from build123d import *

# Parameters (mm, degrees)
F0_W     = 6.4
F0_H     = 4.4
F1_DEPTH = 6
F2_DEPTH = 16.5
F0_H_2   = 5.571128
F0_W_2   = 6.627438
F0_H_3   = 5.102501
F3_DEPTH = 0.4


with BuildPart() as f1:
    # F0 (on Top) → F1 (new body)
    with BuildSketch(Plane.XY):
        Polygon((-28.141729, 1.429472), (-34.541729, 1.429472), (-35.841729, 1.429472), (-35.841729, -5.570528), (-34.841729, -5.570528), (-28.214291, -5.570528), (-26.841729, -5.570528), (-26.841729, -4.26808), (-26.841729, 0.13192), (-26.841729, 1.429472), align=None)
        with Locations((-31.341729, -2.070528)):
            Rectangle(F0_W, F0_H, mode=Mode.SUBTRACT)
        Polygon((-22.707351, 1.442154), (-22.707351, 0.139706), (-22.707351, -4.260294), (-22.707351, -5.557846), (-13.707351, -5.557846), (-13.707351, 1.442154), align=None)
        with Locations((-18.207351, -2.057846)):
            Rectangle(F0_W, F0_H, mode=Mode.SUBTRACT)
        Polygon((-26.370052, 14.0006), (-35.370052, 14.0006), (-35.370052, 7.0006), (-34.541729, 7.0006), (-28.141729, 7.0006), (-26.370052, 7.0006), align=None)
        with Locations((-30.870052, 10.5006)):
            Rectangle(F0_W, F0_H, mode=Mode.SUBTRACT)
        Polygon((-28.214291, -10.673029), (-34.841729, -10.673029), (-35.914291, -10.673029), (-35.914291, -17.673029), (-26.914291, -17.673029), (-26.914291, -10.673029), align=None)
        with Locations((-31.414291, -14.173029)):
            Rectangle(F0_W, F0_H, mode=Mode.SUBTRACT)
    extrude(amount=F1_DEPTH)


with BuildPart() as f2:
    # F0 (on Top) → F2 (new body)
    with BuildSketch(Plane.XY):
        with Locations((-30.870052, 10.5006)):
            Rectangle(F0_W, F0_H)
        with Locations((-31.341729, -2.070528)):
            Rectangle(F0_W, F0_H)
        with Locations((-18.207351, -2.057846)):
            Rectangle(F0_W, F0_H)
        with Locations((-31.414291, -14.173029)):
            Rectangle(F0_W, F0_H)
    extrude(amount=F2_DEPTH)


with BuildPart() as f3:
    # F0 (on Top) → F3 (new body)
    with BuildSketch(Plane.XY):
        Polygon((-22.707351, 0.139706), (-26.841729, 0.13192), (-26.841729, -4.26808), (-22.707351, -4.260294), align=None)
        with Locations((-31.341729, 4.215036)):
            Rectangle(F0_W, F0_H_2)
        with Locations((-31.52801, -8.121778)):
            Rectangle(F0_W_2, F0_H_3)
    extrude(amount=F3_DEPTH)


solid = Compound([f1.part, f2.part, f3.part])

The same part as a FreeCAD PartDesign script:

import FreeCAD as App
import Part
import Sketcher
from FreeCAD import Vector

doc = App.newDocument("Part")
body = doc.addObject("PartDesign::Body", "Body")
body.AllowCompound = True

# Sketch on XY plane
sketch1 = body.newObject("Sketcher::SketchObject", "Sketch")
sketch1.AttachmentSupport = (doc.getObject("XY_Plane"), [""])
sketch1.MapMode = "FlatFace"
sketch1.addGeometry(Part.LineSegment(Vector(-35.841729, 1.429472, 0), Vector(-35.841729, -5.570528, 0)), False)
sketch1.addGeometry(Part.LineSegment(Vector(-35.841729, -5.570528, 0), Vector(-26.841729, -5.570528, 0)), False)
sketch1.addGeometry(Part.LineSegment(Vector(-26.841729, -5.570528, 0), Vector(-26.841729, 1.429472, 0)), False)
sketch1.addGeometry(Part.LineSegment(Vector(-26.841729, 1.429472, 0), Vector(-35.841729, 1.429472, 0)), False)
sketch1.addGeometry(Part.LineSegment(Vector(-28.141729, -4.270528, 0), Vector(-34.541729, -4.270528, 0)), False)
sketch1.addGeometry(Part.LineSegment(Vector(-34.541729, -4.270528, 0), Vector(-34.541729, 0.129472, 0)), False)
sketch1.addGeometry(Part.LineSegment(Vector(-34.541729, 0.129472, 0), Vector(-28.141729, 0.129472, 0)), False)
sketch1.addGeometry(Part.LineSegment(Vector(-28.141729, 0.129472, 0), Vector(-28.141729, -4.270528, 0)), False)
sketch1.addGeometry(Part.LineSegment(Vector(-22.707351, 1.442154, 0), Vector(-22.707351, -5.557846, 0)), False)
sketch1.addGeometry(Part.LineSegment(Vector(-22.707351, -5.557846, 0), Vector(-13.707351, -5.557846, 0)), False)
sketch1.addGeometry(Part.LineSegment(Vector(-13.707351, -5.557846, 0), Vector(-13.707351, 1.442154, 0)), False)
sketch1.addGeometry(Part.LineSegment(Vector(-13.707351, 1.442154, 0), Vector(-22.707351, 1.442154, 0)), False)
sketch1.addGeometry(Part.LineSegment(Vector(-15.007351, -4.257846, 0), Vector(-21.407351, -4.257846, 0)), False)
sketch1.addGeometry(Part.LineSegment(Vector(-21.407351, -4.257846, 0), Vector(-21.407351, 0.142154, 0)), False)
sketch1.addGeometry(Part.LineSegment(Vector(-21.407351, 0.142154, 0), Vector(-15.007351, 0.142154, 0)), False)
sketch1.addGeometry(Part.LineSegment(Vector(-15.007351, 0.142154, 0), Vector(-15.007351, -4.257846, 0)), False)
sketch1.addGeometry(Part.LineSegment(Vector(-26.370052, 14.0006, 0), Vector(-35.370052, 14.0006, 0)), False)
sketch1.addGeometry(Part.LineSegment(Vector(-35.370052, 14.0006, 0), Vector(-35.370052, 7.0006, 0)), False)
sketch1.addGeometry(Part.LineSegment(Vector(-35.370052, 7.0006, 0), Vector(-26.370052, 7.0006, 0)), False)
sketch1.addGeometry(Part.LineSegment(Vector(-26.370052, 7.0006, 0), Vector(-26.370052, 14.0006, 0)), False)
sketch1.addGeometry(Part.LineSegment(Vector(-27.670052, 8.3006, 0), Vector(-34.070052, 8.3006, 0)), False)
sketch1.addGeometry(Part.LineSegment(Vector(-34.070052, 8.3006, 0), Vector(-34.070052, 12.7006, 0)), False)
sketch1.addGeometry(Part.LineSegment(Vector(-34.070052, 12.7006, 0), Vector(-27.670052, 12.7006, 0)), False)
sketch1.addGeometry(Part.LineSegment(Vector(-27.670052, 12.7006, 0), Vector(-27.670052, 8.3006, 0)), False)
sketch1.addGeometry(Part.LineSegment(Vector(-35.914291, -10.673029, 0), Vector(-35.914291, -17.673029, 0)), False)
sketch1.addGeometry(Part.LineSegment(Vector(-35.914291, -17.673029, 0), Vector(-26.914291, -17.673029, 0)), False)
sketch1.addGeometry(Part.LineSegment(Vector(-26.914291, -17.673029, 0), Vector(-26.914291, -10.673029, 0)), False)
sketch1.addGeometry(Part.LineSegment(Vector(-26.914291, -10.673029, 0), Vector(-35.914291, -10.673029, 0)), False)
sketch1.addGeometry(Part.LineSegment(Vector(-28.214291, -16.373029, 0), Vector(-34.614291, -16.373029, 0)), False)
sketch1.addGeometry(Part.LineSegment(Vector(-34.614291, -16.373029, 0), Vector(-34.614291, -11.973029, 0)), False)
sketch1.addGeometry(Part.LineSegment(Vector(-34.614291, -11.973029, 0), Vector(-28.214291, -11.973029, 0)), False)
sketch1.addGeometry(Part.LineSegment(Vector(-28.214291, -11.973029, 0), Vector(-28.214291, -16.373029, 0)), False)
sketch1.addConstraint(Sketcher.Constraint("Coincident", 0, 2, 1, 1))
sketch1.addConstraint(Sketcher.Constraint("Coincident", 1, 2, 2, 1))
sketch1.addConstraint(Sketcher.Constraint("Coincident", 2, 2, 3, 1))
sketch1.addConstraint(Sketcher.Constraint("Coincident", 3, 2, 0, 1))
sketch1.addConstraint(Sketcher.Constraint("Coincident", 4, 2, 5, 1))
sketch1.addConstraint(Sketcher.Constraint("Coincident", 5, 2, 6, 1))
sketch1.addConstraint(Sketcher.Constraint("Coincident", 6, 2, 7, 1))
sketch1.addConstraint(Sketcher.Constraint("Coincident", 7, 2, 4, 1))
sketch1.addConstraint(Sketcher.Constraint("Coincident", 8, 2, 9, 1))
sketch1.addConstraint(Sketcher.Constraint("Coincident", 9, 2, 10, 1))
sketch1.addConstraint(Sketcher.Constraint("Coincident", 10, 2, 11, 1))
sketch1.addConstraint(Sketcher.Constraint("Coincident", 11, 2, 8, 1))
sketch1.addConstraint(Sketcher.Constraint("Coincident", 12, 2, 13, 1))
sketch1.addConstraint(Sketcher.Constraint("Coincident", 13, 2, 14, 1))
sketch1.addConstraint(Sketcher.Constraint("Coincident", 14, 2, 15, 1))
sketch1.addConstraint(Sketcher.Constraint("Coincident", 15, 2, 12, 1))
sketch1.addConstraint(Sketcher.Constraint("Coincident", 16, 2, 17, 1))
sketch1.addConstraint(Sketcher.Constraint("Coincident", 17, 2, 18, 1))
sketch1.addConstraint(Sketcher.Constraint("Coincident", 18, 2, 19, 1))
sketch1.addConstraint(Sketcher.Constraint("Coincident", 19, 2, 16, 1))
sketch1.addConstraint(Sketcher.Constraint("Coincident", 20, 2, 21, 1))
sketch1.addConstraint(Sketcher.Constraint("Coincident", 21, 2, 22, 1))
sketch1.addConstraint(Sketcher.Constraint("Coincident", 22, 2, 23, 1))
sketch1.addConstraint(Sketcher.Constraint("Coincident", 23, 2, 20, 1))
sketch1.addConstraint(Sketcher.Constraint("Coincident", 24, 2, 25, 1))
sketch1.addConstraint(Sketcher.Constraint("Coincident", 25, 2, 26, 1))
sketch1.addConstraint(Sketcher.Constraint("Coincident", 26, 2, 27, 1))
sketch1.addConstraint(Sketcher.Constraint("Coincident", 27, 2, 24, 1))
sketch1.addConstraint(Sketcher.Constraint("Coincident", 28, 2, 29, 1))
sketch1.addConstraint(Sketcher.Constraint("Coincident", 29, 2, 30, 1))
sketch1.addConstraint(Sketcher.Constraint("Coincident", 30, 2, 31, 1))
sketch1.addConstraint(Sketcher.Constraint("Coincident", 31, 2, 28, 1))
sketch1.addConstraint(Sketcher.Constraint("Vertical", 0))
sketch1.addConstraint(Sketcher.Constraint("Horizontal", 1))
sketch1.addConstraint(Sketcher.Constraint("Vertical", 2))
sketch1.addConstraint(Sketcher.Constraint("Horizontal", 3))
sketch1.addConstraint(Sketcher.Constraint("Horizontal", 4))
sketch1.addConstraint(Sketcher.Constraint("Vertical", 5))
sketch1.addConstraint(Sketcher.Constraint("Horizontal", 6))
sketch1.addConstraint(Sketcher.Constraint("Vertical", 7))
sketch1.addConstraint(Sketcher.Constraint("Vertical", 8))
sketch1.addConstraint(Sketcher.Constraint("Horizontal", 9))
sketch1.addConstraint(Sketcher.Constraint("Vertical", 10))
sketch1.addConstraint(Sketcher.Constraint("Horizontal", 11))
sketch1.addConstraint(Sketcher.Constraint("Horizontal", 12))
sketch1.addConstraint(Sketcher.Constraint("Vertical", 13))
sketch1.addConstraint(Sketcher.Constraint("Horizontal", 14))
sketch1.addConstraint(Sketcher.Constraint("Vertical", 15))
sketch1.addConstraint(Sketcher.Constraint("Horizontal", 16))
sketch1.addConstraint(Sketcher.Constraint("Vertical", 17))
sketch1.addConstraint(Sketcher.Constraint("Horizontal", 18))
sketch1.addConstraint(Sketcher.Constraint("Vertical", 19))
sketch1.addConstraint(Sketcher.Constraint("Horizontal", 20))
sketch1.addConstraint(Sketcher.Constraint("Vertical", 21))
sketch1.addConstraint(Sketcher.Constraint("Horizontal", 22))
sketch1.addConstraint(Sketcher.Constraint("Vertical", 23))
sketch1.addConstraint(Sketcher.Constraint("Vertical", 24))
sketch1.addConstraint(Sketcher.Constraint("Horizontal", 25))
sketch1.addConstraint(Sketcher.Constraint("Vertical", 26))
sketch1.addConstraint(Sketcher.Constraint("Horizontal", 27))
sketch1.addConstraint(Sketcher.Constraint("Horizontal", 28))
sketch1.addConstraint(Sketcher.Constraint("Vertical", 29))
sketch1.addConstraint(Sketcher.Constraint("Horizontal", 30))
sketch1.addConstraint(Sketcher.Constraint("Vertical", 31))
sketch1.addConstraint(Sketcher.Constraint("Equal", 3, 9))
sketch1.addConstraint(Sketcher.Constraint("Equal", 6, 12))
sketch1.addConstraint(Sketcher.Constraint("Equal", 11, 16))
sketch1.addConstraint(Sketcher.Constraint("Equal", 14, 20))
sketch1.addConstraint(Sketcher.Constraint("Equal", 18, 25))
sketch1.addConstraint(Sketcher.Constraint("Equal", 22, 28))
sketch1.addConstraint(Sketcher.Constraint("Equal", 2, 8))
sketch1.addConstraint(Sketcher.Constraint("Equal", 7, 13))
sketch1.addConstraint(Sketcher.Constraint("Equal", 10, 17))
sketch1.addConstraint(Sketcher.Constraint("Equal", 15, 21))
sketch1.addConstraint(Sketcher.Constraint("Equal", 19, 24))
sketch1.addConstraint(Sketcher.Constraint("Equal", 23, 29))
sketch1.addConstraint(Sketcher.Constraint("DistanceX", 1, 1, 1, 2, 9.0))
sketch1.addConstraint(Sketcher.Constraint("DistanceY", 0, 2, 0, 1, 7.0))
sketch1.addConstraint(Sketcher.Constraint("DistanceX", 4, 2, 4, 1, 6.4))
sketch1.addConstraint(Sketcher.Constraint("DistanceY", 5, 1, 5, 2, 4.4))
sketch1.addConstraint(Sketcher.Constraint("DistanceX", 0, 2, 4, 2, 1.3))
sketch1.addConstraint(Sketcher.Constraint("DistanceY", 0, 2, 4, 2, 1.3))
sketch1.addConstraint(Sketcher.Constraint("DistanceX", 8, 2, 12, 2, 1.3))
sketch1.addConstraint(Sketcher.Constraint("DistanceY", 8, 2, 12, 2, 1.3))
sketch1.addConstraint(Sketcher.Constraint("DistanceX", 17, 2, 20, 2, 1.3))
sketch1.addConstraint(Sketcher.Constraint("DistanceY", 17, 2, 20, 2, 1.3))
sketch1.addConstraint(Sketcher.Constraint("DistanceX", 24, 2, 28, 2, 1.3))
sketch1.addConstraint(Sketcher.Constraint("DistanceY", 24, 2, 28, 2, 1.3))
sketch1.addConstraint(Sketcher.Constraint("DistanceY", -1, 1, 16, 2, 14.0006))
sketch1.addConstraint(Sketcher.Constraint("DistanceX", 16, 2, 11, 2, 12.662701))
sketch1.addConstraint(Sketcher.Constraint("DistanceY", 24, 2, 0, 2, 12.102501))
sketch1.addConstraint(Sketcher.Constraint("DistanceX", 0, 2, -1, 1, 35.841729))
sketch1.addConstraint(Sketcher.Constraint("DistanceY", 0, 2, -1, 1, 5.570528))
sketch1.addConstraint(Sketcher.Constraint("DistanceX", 8, 2, -1, 1, 22.707351))
sketch1.addConstraint(Sketcher.Constraint("DistanceX", 24, 2, -1, 1, 35.914291))
sketch1.addConstraint(Sketcher.Constraint("DistanceY", 2, 2, 10, 2, 0.012682))
pad1 = body.newObject("PartDesign::Pad", "Pad")
pad1.Profile = sketch1
pad1.Length = 6
body2 = doc.addObject("PartDesign::Body", "Body001")
body2.AllowCompound = True

# Sketch on XY plane
sketch2 = body2.newObject("Sketcher::SketchObject", "Sketch001")
sketch2.AttachmentSupport = (doc.getObject("XY_Plane001"), [""])
sketch2.MapMode = "FlatFace"
sketch2.addGeometry(Part.LineSegment(Vector(-34.070052, 12.7006, 0), Vector(-34.070052, 8.3006, 0)), False)
sketch2.addGeometry(Part.LineSegment(Vector(-34.070052, 8.3006, 0), Vector(-27.670052, 8.3006, 0)), False)
sketch2.addGeometry(Part.LineSegment(Vector(-27.670052, 8.3006, 0), Vector(-27.670052, 12.7006, 0)), False)
sketch2.addGeometry(Part.LineSegment(Vector(-27.670052, 12.7006, 0), Vector(-34.070052, 12.7006, 0)), False)
sketch2.addGeometry(Part.LineSegment(Vector(-34.541729, 0.129472, 0), Vector(-34.541729, -4.270528, 0)), False)
sketch2.addGeometry(Part.LineSegment(Vector(-34.541729, -4.270528, 0), Vector(-28.141729, -4.270528, 0)), False)
sketch2.addGeometry(Part.LineSegment(Vector(-28.141729, -4.270528, 0), Vector(-28.141729, 0.129472, 0)), False)
sketch2.addGeometry(Part.LineSegment(Vector(-28.141729, 0.129472, 0), Vector(-34.541729, 0.129472, 0)), False)
sketch2.addGeometry(Part.LineSegment(Vector(-21.407351, 0.142154, 0), Vector(-21.407351, -4.257846, 0)), False)
sketch2.addGeometry(Part.LineSegment(Vector(-21.407351, -4.257846, 0), Vector(-15.007351, -4.257846, 0)), False)
sketch2.addGeometry(Part.LineSegment(Vector(-15.007351, -4.257846, 0), Vector(-15.007351, 0.142154, 0)), False)
sketch2.addGeometry(Part.LineSegment(Vector(-15.007351, 0.142154, 0), Vector(-21.407351, 0.142154, 0)), False)
sketch2.addGeometry(Part.LineSegment(Vector(-34.614291, -11.973029, 0), Vector(-34.614291, -16.373029, 0)), False)
sketch2.addGeometry(Part.LineSegment(Vector(-34.614291, -16.373029, 0), Vector(-28.214291, -16.373029, 0)), False)
sketch2.addGeometry(Part.LineSegment(Vector(-28.214291, -16.373029, 0), Vector(-28.214291, -11.973029, 0)), False)
sketch2.addGeometry(Part.LineSegment(Vector(-28.214291, -11.973029, 0), Vector(-34.614291, -11.973029, 0)), False)
sketch2.addConstraint(Sketcher.Constraint("Coincident", 0, 2, 1, 1))
sketch2.addConstraint(Sketcher.Constraint("Coincident", 1, 2, 2, 1))
sketch2.addConstraint(Sketcher.Constraint("Coincident", 2, 2, 3, 1))
sketch2.addConstraint(Sketcher.Constraint("Coincident", 3, 2, 0, 1))
sketch2.addConstraint(Sketcher.Constraint("Coincident", 4, 2, 5, 1))
sketch2.addConstraint(Sketcher.Constraint("Coincident", 5, 2, 6, 1))
sketch2.addConstraint(Sketcher.Constraint("Coincident", 6, 2, 7, 1))
sketch2.addConstraint(Sketcher.Constraint("Coincident", 7, 2, 4, 1))
sketch2.addConstraint(Sketcher.Constraint("Coincident", 8, 2, 9, 1))
sketch2.addConstraint(Sketcher.Constraint("Coincident", 9, 2, 10, 1))
sketch2.addConstraint(Sketcher.Constraint("Coincident", 10, 2, 11, 1))
sketch2.addConstraint(Sketcher.Constraint("Coincident", 11, 2, 8, 1))
sketch2.addConstraint(Sketcher.Constraint("Coincident", 12, 2, 13, 1))
sketch2.addConstraint(Sketcher.Constraint("Coincident", 13, 2, 14, 1))
sketch2.addConstraint(Sketcher.Constraint("Coincident", 14, 2, 15, 1))
sketch2.addConstraint(Sketcher.Constraint("Coincident", 15, 2, 12, 1))
sketch2.addConstraint(Sketcher.Constraint("Vertical", 0))
sketch2.addConstraint(Sketcher.Constraint("Horizontal", 1))
sketch2.addConstraint(Sketcher.Constraint("Vertical", 2))
sketch2.addConstraint(Sketcher.Constraint("Horizontal", 3))
sketch2.addConstraint(Sketcher.Constraint("Vertical", 4))
sketch2.addConstraint(Sketcher.Constraint("Horizontal", 5))
sketch2.addConstraint(Sketcher.Constraint("Vertical", 6))
sketch2.addConstraint(Sketcher.Constraint("Horizontal", 7))
sketch2.addConstraint(Sketcher.Constraint("Vertical", 8))
sketch2.addConstraint(Sketcher.Constraint("Horizontal", 9))
sketch2.addConstraint(Sketcher.Constraint("Vertical", 10))
sketch2.addConstraint(Sketcher.Constraint("Horizontal", 11))
sketch2.addConstraint(Sketcher.Constraint("Vertical", 12))
sketch2.addConstraint(Sketcher.Constraint("Horizontal", 13))
sketch2.addConstraint(Sketcher.Constraint("Vertical", 14))
sketch2.addConstraint(Sketcher.Constraint("Horizontal", 15))
sketch2.addConstraint(Sketcher.Constraint("Equal", 3, 5))
sketch2.addConstraint(Sketcher.Constraint("Equal", 7, 9))
sketch2.addConstraint(Sketcher.Constraint("Equal", 11, 13))
sketch2.addConstraint(Sketcher.Constraint("Equal", 2, 4))
sketch2.addConstraint(Sketcher.Constraint("Equal", 6, 8))
sketch2.addConstraint(Sketcher.Constraint("Equal", 10, 12))
sketch2.addConstraint(Sketcher.Constraint("DistanceX", 1, 1, 1, 2, 6.4))
sketch2.addConstraint(Sketcher.Constraint("DistanceY", 0, 2, 0, 1, 4.4))
sketch2.addConstraint(Sketcher.Constraint("DistanceY", -1, 1, 0, 2, 8.3006))
sketch2.addConstraint(Sketcher.Constraint("DistanceX", 1, 2, 8, 2, 6.262701))
sketch2.addConstraint(Sketcher.Constraint("DistanceY", 12, 2, 4, 2, 12.102501))
sketch2.addConstraint(Sketcher.Constraint("DistanceX", 0, 2, -1, 1, 34.070052))
sketch2.addConstraint(Sketcher.Constraint("DistanceX", 4, 2, -1, 1, 34.541729))
sketch2.addConstraint(Sketcher.Constraint("DistanceX", 12, 2, -1, 1, 34.614291))
sketch2.addConstraint(Sketcher.Constraint("DistanceY", 12, 2, -1, 1, 16.373029))
sketch2.addConstraint(Sketcher.Constraint("DistanceY", 5, 2, 8, 2, 0.012682))
pad2 = body2.newObject("PartDesign::Pad", "Pad001")
pad2.Profile = sketch2
pad2.Length = 16.5
body3 = doc.addObject("PartDesign::Body", "Body002")
body3.AllowCompound = True

# Sketch on XY plane
sketch3 = body3.newObject("Sketcher::SketchObject", "Sketch002")
sketch3.AttachmentSupport = (doc.getObject("XY_Plane002"), [""])
sketch3.MapMode = "FlatFace"
sketch3.addGeometry(Part.LineSegment(Vector(-22.707351, 0.139706, 0), Vector(-26.841729, 0.13192, 0)), False)
sketch3.addGeometry(Part.LineSegment(Vector(-26.841729, 0.13192, 0), Vector(-26.841729, -4.26808, 0)), False)
sketch3.addGeometry(Part.LineSegment(Vector(-26.841729, -4.26808, 0), Vector(-22.707351, -4.260294, 0)), False)
sketch3.addGeometry(Part.LineSegment(Vector(-22.707351, -4.260294, 0), Vector(-22.707351, 0.139706, 0)), False)
sketch3.addGeometry(Part.LineSegment(Vector(-34.541729, 7.0006, 0), Vector(-34.541729, 1.429472, 0)), False)
sketch3.addGeometry(Part.LineSegment(Vector(-34.541729, 1.429472, 0), Vector(-28.141729, 1.429472, 0)), False)
sketch3.addGeometry(Part.LineSegment(Vector(-28.141729, 1.429472, 0), Vector(-28.141729, 7.0006, 0)), False)
sketch3.addGeometry(Part.LineSegment(Vector(-28.141729, 7.0006, 0), Vector(-34.541729, 7.0006, 0)), False)
sketch3.addGeometry(Part.LineSegment(Vector(-34.841729, -5.570527, 0), Vector(-34.841729, -10.673028, 0)), False)
sketch3.addGeometry(Part.LineSegment(Vector(-34.841729, -10.673028, 0), Vector(-28.214291, -10.673028, 0)), False)
sketch3.addGeometry(Part.LineSegment(Vector(-28.214291, -10.673028, 0), Vector(-28.214291, -5.570527, 0)), False)
sketch3.addGeometry(Part.LineSegment(Vector(-28.214291, -5.570527, 0), Vector(-34.841729, -5.570527, 0)), False)
sketch3.addConstraint(Sketcher.Constraint("Coincident", 0, 2, 1, 1))
sketch3.addConstraint(Sketcher.Constraint("Coincident", 1, 2, 2, 1))
sketch3.addConstraint(Sketcher.Constraint("Coincident", 2, 2, 3, 1))
sketch3.addConstraint(Sketcher.Constraint("Coincident", 3, 2, 0, 1))
sketch3.addConstraint(Sketcher.Constraint("Coincident", 4, 2, 5, 1))
sketch3.addConstraint(Sketcher.Constraint("Coincident", 5, 2, 6, 1))
sketch3.addConstraint(Sketcher.Constraint("Coincident", 6, 2, 7, 1))
sketch3.addConstraint(Sketcher.Constraint("Coincident", 7, 2, 4, 1))
sketch3.addConstraint(Sketcher.Constraint("Coincident", 8, 2, 9, 1))
sketch3.addConstraint(Sketcher.Constraint("Coincident", 9, 2, 10, 1))
sketch3.addConstraint(Sketcher.Constraint("Coincident", 10, 2, 11, 1))
sketch3.addConstraint(Sketcher.Constraint("Coincident", 11, 2, 8, 1))
sketch3.addConstraint(Sketcher.Constraint("Vertical", 1))
sketch3.addConstraint(Sketcher.Constraint("Vertical", 3))
sketch3.addConstraint(Sketcher.Constraint("Vertical", 4))
sketch3.addConstraint(Sketcher.Constraint("Horizontal", 5))
sketch3.addConstraint(Sketcher.Constraint("Vertical", 6))
sketch3.addConstraint(Sketcher.Constraint("Horizontal", 7))
sketch3.addConstraint(Sketcher.Constraint("Vertical", 8))
sketch3.addConstraint(Sketcher.Constraint("Horizontal", 9))
sketch3.addConstraint(Sketcher.Constraint("Vertical", 10))
sketch3.addConstraint(Sketcher.Constraint("Horizontal", 11))
sketch3.addConstraint(Sketcher.Constraint("Parallel", 0, 2))
sketch3.addConstraint(Sketcher.Constraint("DistanceX", 5, 1, 5, 2, 6.4))
sketch3.addConstraint(Sketcher.Constraint("DistanceY", 1, 2, 1, 1, 4.4))
sketch3.addConstraint(Sketcher.Constraint("DistanceX", 8, 2, 1, 2, 8.0))
sketch3.addConstraint(Sketcher.Constraint("DistanceY", 10, 2, 5, 2, 6.999999))
sketch3.addConstraint(Sketcher.Constraint("DistanceX", 4, 2, 0, 2, 7.7))
sketch3.addConstraint(Sketcher.Constraint("DistanceY", 8, 2, 8, 1, 5.102501))
sketch3.addConstraint(Sketcher.Constraint("DistanceX", 9, 1, 9, 2, 6.627438))
sketch3.addConstraint(Sketcher.Constraint("DistanceY", -1, 1, 6, 2, 7.0006))
sketch3.addConstraint(Sketcher.Constraint("DistanceY", 4, 2, 4, 1, 5.571128))
sketch3.addConstraint(Sketcher.Constraint("DistanceX", 0, 2, -1, 1, 26.841729))
sketch3.addConstraint(Sketcher.Constraint("DistanceY", -1, 1, 0, 2, 0.13192))
sketch3.addConstraint(Sketcher.Constraint("DistanceX", 2, 2, -1, 1, 22.707351))
sketch3.addConstraint(Sketcher.Constraint("DistanceY", 2, 2, -1, 1, 4.260294))
pad3 = body3.newObject("PartDesign::Pad", "Pad002")
pad3.Profile = sketch3
pad3.Length = 0.4

doc.recompute()
